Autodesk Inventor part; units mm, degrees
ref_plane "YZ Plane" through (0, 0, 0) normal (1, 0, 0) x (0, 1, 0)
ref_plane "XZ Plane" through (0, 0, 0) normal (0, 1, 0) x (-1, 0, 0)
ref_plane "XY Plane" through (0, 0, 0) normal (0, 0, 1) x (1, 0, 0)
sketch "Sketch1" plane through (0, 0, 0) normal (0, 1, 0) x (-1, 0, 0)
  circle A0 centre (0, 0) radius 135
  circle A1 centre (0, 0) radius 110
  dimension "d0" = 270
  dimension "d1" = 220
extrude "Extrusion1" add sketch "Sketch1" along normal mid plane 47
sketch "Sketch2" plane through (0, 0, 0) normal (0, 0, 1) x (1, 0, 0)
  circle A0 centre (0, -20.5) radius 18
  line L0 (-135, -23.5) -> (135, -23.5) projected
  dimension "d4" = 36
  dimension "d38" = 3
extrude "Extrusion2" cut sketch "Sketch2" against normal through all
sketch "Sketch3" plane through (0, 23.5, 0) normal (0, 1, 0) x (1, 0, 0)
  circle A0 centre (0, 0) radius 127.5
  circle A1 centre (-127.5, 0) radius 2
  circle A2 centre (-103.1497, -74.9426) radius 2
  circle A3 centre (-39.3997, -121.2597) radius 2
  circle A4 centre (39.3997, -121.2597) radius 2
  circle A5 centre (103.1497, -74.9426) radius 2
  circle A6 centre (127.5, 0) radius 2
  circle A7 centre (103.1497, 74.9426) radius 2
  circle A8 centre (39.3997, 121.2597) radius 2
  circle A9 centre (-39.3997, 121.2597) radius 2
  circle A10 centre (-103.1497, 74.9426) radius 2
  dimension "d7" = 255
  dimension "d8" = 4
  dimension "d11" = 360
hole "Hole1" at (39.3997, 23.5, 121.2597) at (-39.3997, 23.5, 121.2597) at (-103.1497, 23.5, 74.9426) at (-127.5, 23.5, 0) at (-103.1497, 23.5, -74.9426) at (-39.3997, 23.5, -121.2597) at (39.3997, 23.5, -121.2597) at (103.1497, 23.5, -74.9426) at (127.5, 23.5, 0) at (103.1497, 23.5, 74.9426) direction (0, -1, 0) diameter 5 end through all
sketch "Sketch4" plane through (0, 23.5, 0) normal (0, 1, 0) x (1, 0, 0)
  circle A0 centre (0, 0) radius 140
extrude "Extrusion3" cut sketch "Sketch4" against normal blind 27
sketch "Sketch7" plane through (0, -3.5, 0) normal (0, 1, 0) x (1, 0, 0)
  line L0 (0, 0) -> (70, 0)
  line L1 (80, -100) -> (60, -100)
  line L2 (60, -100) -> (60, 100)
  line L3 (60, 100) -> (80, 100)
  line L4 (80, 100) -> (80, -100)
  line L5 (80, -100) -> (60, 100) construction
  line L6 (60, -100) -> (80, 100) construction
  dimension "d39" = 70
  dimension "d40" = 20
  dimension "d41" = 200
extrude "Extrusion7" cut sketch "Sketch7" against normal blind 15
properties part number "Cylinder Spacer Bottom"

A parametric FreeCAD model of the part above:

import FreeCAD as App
import Part
import Sketcher
from FreeCAD import Vector

doc = App.newDocument("Part")
body = doc.addObject("PartDesign::Body", "Body")

# Sketch on XZ plane
sketch1 = body.newObject("Sketcher::SketchObject", "Sketch")
sketch1.AttachmentSupport = (doc.getObject("XZ_Plane"), [""])
sketch1.MapMode = "FlatFace"
sketch1.addGeometry(Part.Circle(Vector(0, 0, 0), Vector(0, 0, 1), 135), False)
sketch1.addGeometry(Part.Circle(Vector(0, 0, 0), Vector(0, 0, 1), 110), False)
sketch1.addConstraint(Sketcher.Constraint("Coincident", 0, 3, -1, 1))
sketch1.addConstraint(Sketcher.Constraint("Coincident", 1, 3, -1, 1))
sketch1.addConstraint(Sketcher.Constraint("Diameter", 0, 270.0))
sketch1.addConstraint(Sketcher.Constraint("Diameter", 1, 220.0))
pad1 = body.newObject("PartDesign::Pad", "Pad")
pad1.Profile = sketch1
pad1.Length = 47
pad1.Midplane = True

# Sketch on XY plane
sketch2 = body.newObject("Sketcher::SketchObject", "Sketch001")
sketch2.AttachmentSupport = (doc.getObject("XY_Plane"), [""])
sketch2.MapMode = "FlatFace"
sketch2.addGeometry(Part.Circle(Vector(0, -20.5, 0), Vector(0, 0, 1), 18), False)
sketch2.addConstraint(Sketcher.Constraint("PointOnObject", 0, 3, -2))
sketch2.addConstraint(Sketcher.Constraint("Diameter", 0, 36.0))
sketch2.addConstraint(Sketcher.Constraint("DistanceY", 0, 3, -1, 1, 20.5))
pocket1 = body.newObject("PartDesign::Pocket", "Pocket")
pocket1.Profile = sketch2
pocket1.Type = "ThroughAll"

# Sketch on XZ plane
sketch3 = body.newObject("Sketcher::SketchObject", "Sketch002")
sketch3.AttachmentSupport = (doc.getObject("XZ_Plane"), [""])
sketch3.MapMode = "FlatFace"
sketch3.AttachmentOffset = App.Placement(Vector(0, 0, -23.5), App.Rotation())
sketch3.addGeometry(Part.Circle(Vector(39.3997, 121.2597, 0), Vector(0, 0, 1), 2.5), False)
sketch3.addGeometry(Part.Circle(Vector(-39.3997, 121.2597, 0), Vector(0, 0, 1), 2.5), False)
sketch3.addGeometry(Part.Circle(Vector(-103.1497, 74.9426, 0), Vector(0, 0, 1), 2.5), False)
sketch3.addGeometry(Part.Circle(Vector(-127.5, 0, 0), Vector(0, 0, 1), 2.5), False)
sketch3.addGeometry(Part.Circle(Vector(-103.1497, -74.9426, 0), Vector(0, 0, 1), 2.5), False)
sketch3.addGeometry(Part.Circle(Vector(-39.3997, -121.2597, 0), Vector(0, 0, 1), 2.5), False)
sketch3.addGeometry(Part.Circle(Vector(39.3997, -121.2597, 0), Vector(0, 0, 1), 2.5), False)
sketch3.addGeometry(Part.Circle(Vector(103.1497, -74.9426, 0), Vector(0, 0, 1), 2.5), False)
sketch3.addGeometry(Part.Circle(Vector(127.5, 0, 0), Vector(0, 0, 1), 2.5), False)
sketch3.addGeometry(Part.Circle(Vector(103.1497, 74.9426, 0), Vector(0, 0, 1), 2.5), False)
sketch3.addConstraint(Sketcher.Constraint("Equal", 0, 1))
sketch3.addConstraint(Sketcher.Constraint("Equal", 1, 2))
sketch3.addConstraint(Sketcher.Constraint("Equal", 2, 3))
sketch3.addConstraint(Sketcher.Constraint("Equal", 3, 4))
sketch3.addConstraint(Sketcher.Constraint("Equal", 4, 5))
sketch3.addConstraint(Sketcher.Constraint("Equal", 5, 6))
sketch3.addConstraint(Sketcher.Constraint("Equal", 6, 7))
sketch3.addConstraint(Sketcher.Constraint("Equal", 7, 8))
sketch3.addConstraint(Sketcher.Constraint("Equal", 8, 9))
sketch3.addConstraint(Sketcher.Constraint("Symmetric", 0, 3, 5, 3, -1, 1))
sketch3.addConstraint(Sketcher.Constraint("Symmetric", 1, 3, 6, 3, -1, 1))
sketch3.addConstraint(Sketcher.Constraint("Symmetric", 2, 3, 7, 3, -1, 1))
sketch3.addConstraint(Sketcher.Constraint("Symmetric", 3, 3, 8, 3, -1, 1))
sketch3.addConstraint(Sketcher.Constraint("Symmetric", 4, 3, 9, 3, -1, 1))
sketch3.addConstraint(Sketcher.Constraint("Symmetric", 0, 3, 1, 3, -2))
sketch3.addConstraint(Sketcher.Constraint("Symmetric", 4, 3, 7, 3, -2))
sketch3.addConstraint(Sketcher.Constraint("PointOnObject", 3, 3, -1))
sketch3.addConstraint(Sketcher.Constraint("Diameter", 0, 5.0))
sketch3.addConstraint(Sketcher.Constraint("DistanceX", 3, 3, -1, 1, 127.5))
sketch3.addConstraint(Sketcher.Constraint("DistanceX", 2, 3, 1, 3, 63.75))
sketch3.addConstraint(Sketcher.Constraint("DistanceY", 2, 3, 1, 3, 46.317))
sketch3.addConstraint(Sketcher.Constraint("DistanceX", -1, 1, 0, 3, 39.3997))
sketch3.addConstraint(Sketcher.Constraint("DistanceY", -1, 1, 0, 3, 121.2597))
doc.recompute()
hole = body.newObject("PartDesign::Hole", "Hole")
hole.Profile = sketch3
hole.ThreadType = "None"
hole.Diameter = 5
hole.DepthType = "ThroughAll"
hole.Reversed = True

# Sketch on XZ plane
sketch4 = body.newObject("Sketcher::SketchObject", "Sketch003")
sketch4.AttachmentSupport = (doc.getObject("XZ_Plane"), [""])
sketch4.MapMode = "FlatFace"
sketch4.AttachmentOffset = App.Placement(Vector(0, 0, -23.5), App.Rotation())
sketch4.addGeometry(Part.Circle(Vector(0, 0, 0), Vector(0, 0, 1), 140), False)
sketch4.addConstraint(Sketcher.Constraint("Coincident", 0, 3, -1, 1))
sketch4.addConstraint(Sketcher.Constraint("Diameter", 0, 280.0))
pocket2 = body.newObject("PartDesign::Pocket", "Pocket001")
pocket2.Profile = sketch4
pocket2.Length = 27
pocket2.Reversed = True

# Sketch on XZ plane
sketch5 = body.newObject("Sketcher::SketchObject", "Sketch004")
sketch5.AttachmentSupport = (doc.getObject("XZ_Plane"), [""])
sketch5.MapMode = "FlatFace"
sketch5.AttachmentOffset = App.Placement(Vector(0, 0, 3.5), App.Rotation())
sketch5.addGeometry(Part.LineSegment(Vector(60, 100, 0), Vector(80, 100, 0)), False)
sketch5.addGeometry(Part.LineSegment(Vector(80, 100, 0), Vector(80, -100, 0)), False)
sketch5.addGeometry(Part.LineSegment(Vector(80, -100, 0), Vector(60, -100, 0)), False)
sketch5.addGeometry(Part.LineSegment(Vector(60, -100, 0), Vector(60, 100, 0)), False)
sketch5.addConstraint(Sketcher.Constraint("Coincident", 0, 2, 1, 1))
sketch5.addConstraint(Sketcher.Constraint("Coincident", 1, 2, 2, 1))
sketch5.addConstraint(Sketcher.Constraint("Coincident", 2, 2, 3, 1))
sketch5.addConstraint(Sketcher.Constraint("Coincident", 3, 2, 0, 1))
sketch5.addConstraint(Sketcher.Constraint("Horizontal", 0))
sketch5.addConstraint(Sketcher.Constraint("Vertical", 1))
sketch5.addConstraint(Sketcher.Constraint("Horizontal", 2))
sketch5.addConstraint(Sketcher.Constraint("Vertical", 3))
sketch5.addConstraint(Sketcher.Constraint("DistanceX", 0, 1, 0, 2, 20.0))
sketch5.addConstraint(Sketcher.Constraint("DistanceY", 1, 2, 1, 1, 200.0))
sketch5.addConstraint(Sketcher.Constraint("DistanceX", -1, 1, 0, 2, 80.0))
sketch5.addConstraint(Sketcher.Constraint("DistanceY", -1, 1, 0, 2, 100.0))
pocket3 = body.newObject("PartDesign::Pocket", "Pocket002")
pocket3.Profile = sketch5
pocket3.Length = 15
pocket3.Reversed = True

doc.recompute()
